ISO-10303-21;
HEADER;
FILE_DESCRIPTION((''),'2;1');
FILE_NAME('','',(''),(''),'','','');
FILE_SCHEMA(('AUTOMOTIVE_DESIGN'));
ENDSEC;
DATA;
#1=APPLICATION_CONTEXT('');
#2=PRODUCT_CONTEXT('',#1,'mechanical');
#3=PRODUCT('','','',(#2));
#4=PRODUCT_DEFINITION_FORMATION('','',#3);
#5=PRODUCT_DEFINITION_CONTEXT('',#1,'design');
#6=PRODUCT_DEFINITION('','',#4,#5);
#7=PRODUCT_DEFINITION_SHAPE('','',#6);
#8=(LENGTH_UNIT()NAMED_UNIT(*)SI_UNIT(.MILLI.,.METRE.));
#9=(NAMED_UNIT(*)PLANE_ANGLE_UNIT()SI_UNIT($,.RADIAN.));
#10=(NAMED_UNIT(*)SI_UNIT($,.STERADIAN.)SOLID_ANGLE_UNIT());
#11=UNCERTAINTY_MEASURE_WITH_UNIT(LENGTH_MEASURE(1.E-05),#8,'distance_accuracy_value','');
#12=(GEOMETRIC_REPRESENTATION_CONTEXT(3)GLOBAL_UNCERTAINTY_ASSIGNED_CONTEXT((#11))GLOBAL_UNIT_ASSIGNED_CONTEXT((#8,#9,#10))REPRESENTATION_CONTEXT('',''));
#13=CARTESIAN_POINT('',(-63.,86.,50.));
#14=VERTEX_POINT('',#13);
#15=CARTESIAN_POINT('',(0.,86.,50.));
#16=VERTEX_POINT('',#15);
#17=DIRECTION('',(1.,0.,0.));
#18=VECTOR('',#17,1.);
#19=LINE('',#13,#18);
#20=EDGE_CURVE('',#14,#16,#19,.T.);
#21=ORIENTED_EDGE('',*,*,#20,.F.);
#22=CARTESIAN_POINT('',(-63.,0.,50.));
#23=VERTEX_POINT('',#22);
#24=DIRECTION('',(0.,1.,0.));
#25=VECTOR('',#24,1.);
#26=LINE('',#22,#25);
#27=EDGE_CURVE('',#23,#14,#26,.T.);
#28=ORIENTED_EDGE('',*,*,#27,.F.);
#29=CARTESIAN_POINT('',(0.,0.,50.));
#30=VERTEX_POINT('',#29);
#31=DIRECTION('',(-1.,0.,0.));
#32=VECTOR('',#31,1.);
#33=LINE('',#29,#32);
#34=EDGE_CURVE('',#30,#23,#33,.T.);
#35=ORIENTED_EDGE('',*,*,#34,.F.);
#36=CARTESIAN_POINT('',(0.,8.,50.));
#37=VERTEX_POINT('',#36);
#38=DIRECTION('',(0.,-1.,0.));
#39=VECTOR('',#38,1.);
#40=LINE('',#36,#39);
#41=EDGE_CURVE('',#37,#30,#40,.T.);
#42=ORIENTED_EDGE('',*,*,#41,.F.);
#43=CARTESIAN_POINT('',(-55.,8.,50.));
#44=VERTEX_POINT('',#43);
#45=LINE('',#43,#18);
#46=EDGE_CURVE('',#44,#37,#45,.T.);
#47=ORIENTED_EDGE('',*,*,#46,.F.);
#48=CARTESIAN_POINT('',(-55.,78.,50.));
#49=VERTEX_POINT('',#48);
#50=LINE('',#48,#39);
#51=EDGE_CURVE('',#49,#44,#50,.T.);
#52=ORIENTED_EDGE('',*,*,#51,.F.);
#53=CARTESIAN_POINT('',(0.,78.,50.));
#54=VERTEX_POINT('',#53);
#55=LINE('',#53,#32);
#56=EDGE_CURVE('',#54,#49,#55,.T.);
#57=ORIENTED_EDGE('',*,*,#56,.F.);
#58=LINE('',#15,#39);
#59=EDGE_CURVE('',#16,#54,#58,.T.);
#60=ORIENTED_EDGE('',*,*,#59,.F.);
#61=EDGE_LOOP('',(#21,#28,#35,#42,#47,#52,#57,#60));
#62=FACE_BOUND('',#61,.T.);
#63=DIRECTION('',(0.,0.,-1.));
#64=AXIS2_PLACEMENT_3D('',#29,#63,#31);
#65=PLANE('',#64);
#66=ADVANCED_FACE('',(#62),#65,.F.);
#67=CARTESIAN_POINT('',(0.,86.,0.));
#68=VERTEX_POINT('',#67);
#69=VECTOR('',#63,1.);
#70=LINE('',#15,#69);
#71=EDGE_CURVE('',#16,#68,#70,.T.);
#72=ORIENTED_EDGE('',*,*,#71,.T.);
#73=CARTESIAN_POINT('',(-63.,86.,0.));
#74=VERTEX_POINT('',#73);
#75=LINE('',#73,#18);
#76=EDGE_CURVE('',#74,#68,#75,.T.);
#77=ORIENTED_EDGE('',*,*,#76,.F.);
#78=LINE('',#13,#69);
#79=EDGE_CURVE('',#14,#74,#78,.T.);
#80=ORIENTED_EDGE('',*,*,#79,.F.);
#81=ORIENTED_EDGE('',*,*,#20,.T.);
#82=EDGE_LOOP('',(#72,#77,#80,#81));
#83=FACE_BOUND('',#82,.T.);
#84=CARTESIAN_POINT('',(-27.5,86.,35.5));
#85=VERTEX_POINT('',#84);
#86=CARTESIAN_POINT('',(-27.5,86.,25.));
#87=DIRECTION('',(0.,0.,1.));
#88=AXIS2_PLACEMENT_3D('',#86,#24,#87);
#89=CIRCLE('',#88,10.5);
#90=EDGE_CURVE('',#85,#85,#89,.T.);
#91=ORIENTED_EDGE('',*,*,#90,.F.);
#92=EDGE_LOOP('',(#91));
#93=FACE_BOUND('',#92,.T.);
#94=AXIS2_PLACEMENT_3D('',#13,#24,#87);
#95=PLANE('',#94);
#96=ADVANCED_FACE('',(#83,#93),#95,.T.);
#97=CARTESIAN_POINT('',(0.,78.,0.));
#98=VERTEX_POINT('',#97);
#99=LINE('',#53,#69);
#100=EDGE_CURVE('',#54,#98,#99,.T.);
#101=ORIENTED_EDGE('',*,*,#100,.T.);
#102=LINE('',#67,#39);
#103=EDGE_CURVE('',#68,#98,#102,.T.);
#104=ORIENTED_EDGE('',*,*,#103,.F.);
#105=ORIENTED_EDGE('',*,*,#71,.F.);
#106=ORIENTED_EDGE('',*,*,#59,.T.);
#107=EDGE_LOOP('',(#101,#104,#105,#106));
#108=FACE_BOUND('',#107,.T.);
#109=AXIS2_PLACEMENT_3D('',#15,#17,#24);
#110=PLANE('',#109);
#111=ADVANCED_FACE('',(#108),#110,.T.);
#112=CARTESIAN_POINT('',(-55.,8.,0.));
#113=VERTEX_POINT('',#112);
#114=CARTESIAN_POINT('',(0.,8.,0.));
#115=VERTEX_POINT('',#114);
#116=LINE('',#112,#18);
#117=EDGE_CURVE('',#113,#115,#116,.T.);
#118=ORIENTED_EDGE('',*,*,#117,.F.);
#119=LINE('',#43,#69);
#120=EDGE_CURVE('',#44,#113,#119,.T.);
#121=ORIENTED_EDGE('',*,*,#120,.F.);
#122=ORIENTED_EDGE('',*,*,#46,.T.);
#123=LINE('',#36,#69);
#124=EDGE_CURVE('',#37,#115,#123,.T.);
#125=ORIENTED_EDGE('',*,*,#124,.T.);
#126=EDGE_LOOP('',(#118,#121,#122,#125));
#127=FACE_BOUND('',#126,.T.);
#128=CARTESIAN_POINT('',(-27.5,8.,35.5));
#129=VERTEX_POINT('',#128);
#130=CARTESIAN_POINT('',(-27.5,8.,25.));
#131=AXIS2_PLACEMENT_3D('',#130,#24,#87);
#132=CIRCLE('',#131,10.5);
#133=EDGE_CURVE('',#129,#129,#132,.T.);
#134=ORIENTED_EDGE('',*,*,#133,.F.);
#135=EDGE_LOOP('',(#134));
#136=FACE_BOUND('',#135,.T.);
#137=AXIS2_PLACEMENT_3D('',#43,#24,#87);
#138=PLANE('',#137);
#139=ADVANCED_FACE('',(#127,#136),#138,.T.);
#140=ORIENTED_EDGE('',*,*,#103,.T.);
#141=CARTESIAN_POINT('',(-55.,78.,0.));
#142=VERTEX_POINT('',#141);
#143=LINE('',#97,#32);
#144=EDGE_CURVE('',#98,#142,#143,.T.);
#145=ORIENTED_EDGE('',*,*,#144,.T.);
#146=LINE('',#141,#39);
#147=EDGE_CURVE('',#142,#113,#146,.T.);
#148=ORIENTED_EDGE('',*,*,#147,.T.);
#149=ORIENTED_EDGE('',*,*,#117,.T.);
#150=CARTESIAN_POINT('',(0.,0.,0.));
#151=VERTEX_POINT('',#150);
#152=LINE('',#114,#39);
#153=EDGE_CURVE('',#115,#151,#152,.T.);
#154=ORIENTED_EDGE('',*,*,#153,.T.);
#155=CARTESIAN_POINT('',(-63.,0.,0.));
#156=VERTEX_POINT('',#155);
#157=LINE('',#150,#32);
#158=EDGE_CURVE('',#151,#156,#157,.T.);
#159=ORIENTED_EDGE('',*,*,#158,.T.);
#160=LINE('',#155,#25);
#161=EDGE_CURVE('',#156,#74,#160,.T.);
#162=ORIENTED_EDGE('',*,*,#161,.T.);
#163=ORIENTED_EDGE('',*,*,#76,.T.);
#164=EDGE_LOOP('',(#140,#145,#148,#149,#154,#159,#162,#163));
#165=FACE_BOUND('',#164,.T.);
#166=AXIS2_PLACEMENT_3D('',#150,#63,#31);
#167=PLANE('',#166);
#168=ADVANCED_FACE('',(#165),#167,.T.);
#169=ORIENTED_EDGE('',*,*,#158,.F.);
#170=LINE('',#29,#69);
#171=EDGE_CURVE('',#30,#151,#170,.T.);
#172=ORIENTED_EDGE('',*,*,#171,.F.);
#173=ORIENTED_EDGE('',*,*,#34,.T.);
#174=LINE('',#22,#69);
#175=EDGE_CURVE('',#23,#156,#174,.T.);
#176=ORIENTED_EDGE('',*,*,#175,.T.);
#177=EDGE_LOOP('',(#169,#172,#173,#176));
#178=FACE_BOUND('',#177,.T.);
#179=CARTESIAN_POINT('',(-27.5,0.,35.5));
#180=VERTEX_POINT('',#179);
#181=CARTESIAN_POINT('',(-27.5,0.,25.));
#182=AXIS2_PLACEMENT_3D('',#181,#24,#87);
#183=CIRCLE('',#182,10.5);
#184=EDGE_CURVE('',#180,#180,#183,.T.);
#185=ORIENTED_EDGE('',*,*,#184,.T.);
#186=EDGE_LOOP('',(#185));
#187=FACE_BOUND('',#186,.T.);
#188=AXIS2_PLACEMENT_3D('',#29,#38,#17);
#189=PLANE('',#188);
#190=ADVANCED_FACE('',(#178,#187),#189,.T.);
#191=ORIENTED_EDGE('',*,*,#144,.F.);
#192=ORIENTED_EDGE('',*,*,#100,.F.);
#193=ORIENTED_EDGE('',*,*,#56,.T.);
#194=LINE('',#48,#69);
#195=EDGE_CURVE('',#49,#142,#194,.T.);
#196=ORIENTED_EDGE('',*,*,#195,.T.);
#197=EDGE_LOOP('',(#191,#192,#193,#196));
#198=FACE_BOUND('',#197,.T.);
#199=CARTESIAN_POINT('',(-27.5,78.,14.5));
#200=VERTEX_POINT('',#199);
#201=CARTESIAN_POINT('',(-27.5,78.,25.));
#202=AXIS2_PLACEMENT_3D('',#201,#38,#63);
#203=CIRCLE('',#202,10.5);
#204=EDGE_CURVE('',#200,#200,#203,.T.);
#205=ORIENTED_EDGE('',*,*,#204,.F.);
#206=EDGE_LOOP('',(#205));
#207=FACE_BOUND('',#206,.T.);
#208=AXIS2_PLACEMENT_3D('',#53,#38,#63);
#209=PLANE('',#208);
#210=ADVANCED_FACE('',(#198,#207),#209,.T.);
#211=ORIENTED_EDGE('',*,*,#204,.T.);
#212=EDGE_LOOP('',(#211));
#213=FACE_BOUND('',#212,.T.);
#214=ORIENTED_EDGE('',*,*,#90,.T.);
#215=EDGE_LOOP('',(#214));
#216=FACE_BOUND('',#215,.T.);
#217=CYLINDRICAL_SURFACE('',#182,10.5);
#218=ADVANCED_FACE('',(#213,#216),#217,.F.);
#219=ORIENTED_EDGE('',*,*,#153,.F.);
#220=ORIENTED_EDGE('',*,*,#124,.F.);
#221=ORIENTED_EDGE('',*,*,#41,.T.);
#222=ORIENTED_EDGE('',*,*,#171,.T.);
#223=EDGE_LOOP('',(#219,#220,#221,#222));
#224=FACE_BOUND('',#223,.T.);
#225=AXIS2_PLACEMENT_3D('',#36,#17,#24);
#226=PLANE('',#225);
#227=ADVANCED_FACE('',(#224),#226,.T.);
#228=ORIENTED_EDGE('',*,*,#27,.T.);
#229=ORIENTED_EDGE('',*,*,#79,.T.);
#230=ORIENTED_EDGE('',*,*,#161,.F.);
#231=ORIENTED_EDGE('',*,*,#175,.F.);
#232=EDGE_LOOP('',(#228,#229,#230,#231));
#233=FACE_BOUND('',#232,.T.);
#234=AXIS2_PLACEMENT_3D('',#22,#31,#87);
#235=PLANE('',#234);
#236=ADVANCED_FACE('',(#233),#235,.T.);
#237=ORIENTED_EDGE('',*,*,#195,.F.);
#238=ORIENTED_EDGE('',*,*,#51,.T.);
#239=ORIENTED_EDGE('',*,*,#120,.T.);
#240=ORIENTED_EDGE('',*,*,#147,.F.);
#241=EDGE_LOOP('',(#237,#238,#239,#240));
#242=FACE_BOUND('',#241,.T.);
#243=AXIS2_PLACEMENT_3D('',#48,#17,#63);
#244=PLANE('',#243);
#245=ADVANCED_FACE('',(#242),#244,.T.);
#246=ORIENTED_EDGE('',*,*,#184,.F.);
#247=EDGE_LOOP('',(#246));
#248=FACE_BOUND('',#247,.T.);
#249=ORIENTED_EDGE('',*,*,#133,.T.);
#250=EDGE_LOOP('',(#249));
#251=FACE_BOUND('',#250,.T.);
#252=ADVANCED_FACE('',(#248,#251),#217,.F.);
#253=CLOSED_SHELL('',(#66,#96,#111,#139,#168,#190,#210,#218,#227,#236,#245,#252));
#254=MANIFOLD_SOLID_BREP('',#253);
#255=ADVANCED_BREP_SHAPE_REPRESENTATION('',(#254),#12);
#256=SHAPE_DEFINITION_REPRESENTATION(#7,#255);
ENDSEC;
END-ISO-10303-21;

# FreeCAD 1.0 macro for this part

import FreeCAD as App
import Part
import Sketcher

V = App.Vector
Q = App.Units.Quantity


def add_polygon(sketch, points):
    """Adds a closed chain of lines whose ends are joined by coincident constraints."""
    first, n = sketch.GeometryCount, len(points)
    for a, b in zip(points, points[1:] + points[:1]):
        sketch.addGeometry(Part.LineSegment(App.Vector(*a, 0), App.Vector(*b, 0)), False)
    for i in range(n):
        sketch.addConstraint(Sketcher.Constraint("Coincident", first + i, 2, first + (i + 1) % n, 1))

doc = App.newDocument("Part")
body = doc.addObject("PartDesign::Body", "Body")

# Sketch on XY plane
sketch1 = doc.addObject("Sketcher::SketchObject", "Sketch")
body.addObject(sketch1)
sketch1.AttachmentSupport = (doc.XY_Plane, [""])
sketch1.MapMode = "FlatFace"
add_polygon(sketch1, [(-63, 0), (0, 0), (0, 8), (-55, 8), (-55, 78), (0, 78), (0, 86), (-63, 86)])  # lines 0-7
sketch1.addConstraint([
    Sketcher.Constraint("Horizontal", 0),
    Sketcher.Constraint("Vertical", 1),
    Sketcher.Constraint("Horizontal", 2),
    Sketcher.Constraint("Vertical", 3),
    Sketcher.Constraint("Horizontal", 4),
    Sketcher.Constraint("Vertical", 5),
    Sketcher.Constraint("Horizontal", 6),
    Sketcher.Constraint("Vertical", 7),
    Sketcher.Constraint("Coincident", 0, 2, -1, 1),
    Sketcher.Constraint("PointOnObject", 4, 2, -2),
    Sketcher.Constraint("Equal", 1, 5),
    Sketcher.Constraint("DistanceX", 0, 1, 0, 2, Q("63 mm")),
    Sketcher.Constraint("DistanceX", 2, 2, 2, 1, Q("55 mm")),
    Sketcher.Constraint("DistanceY", 1, 1, 1, 2, Q("8 mm")),
    Sketcher.Constraint("DistanceY", 3, 1, 3, 2, Q("70 mm")),
])
pad1 = doc.addObject("PartDesign::Pad", "Pad")
body.addObject(pad1)
pad1.Profile = sketch1
pad1.Length = 50

# Sketch on XZ plane
sketch2 = doc.addObject("Sketcher::SketchObject", "Sketch001")
body.addObject(sketch2)
sketch2.AttachmentSupport = (doc.XZ_Plane, [""])
sketch2.MapMode = "FlatFace"
sketch2.AttachmentOffset = App.Placement(V(0, 0, -86), App.Rotation())
sketch2.addGeometry(Part.Circle(V(-28, 25, 0), V(0, 0, 1), 10), False)
sketch2.addConstraint([
    Sketcher.Constraint("Diameter", 0, Q("21 mm")),
    Sketcher.Constraint("DistanceY", -1, 1, 0, 3, Q("25 mm")),
    Sketcher.Constraint("DistanceX", 0, 3, -1, 1, Q("27.5 mm")),
])
pocket1 = doc.addObject("PartDesign::Pocket", "Pocket")
body.addObject(pocket1)
pocket1.Profile = sketch2
pocket1.Type = "ThroughAll"
pocket1.Reversed = True

doc.recompute()
